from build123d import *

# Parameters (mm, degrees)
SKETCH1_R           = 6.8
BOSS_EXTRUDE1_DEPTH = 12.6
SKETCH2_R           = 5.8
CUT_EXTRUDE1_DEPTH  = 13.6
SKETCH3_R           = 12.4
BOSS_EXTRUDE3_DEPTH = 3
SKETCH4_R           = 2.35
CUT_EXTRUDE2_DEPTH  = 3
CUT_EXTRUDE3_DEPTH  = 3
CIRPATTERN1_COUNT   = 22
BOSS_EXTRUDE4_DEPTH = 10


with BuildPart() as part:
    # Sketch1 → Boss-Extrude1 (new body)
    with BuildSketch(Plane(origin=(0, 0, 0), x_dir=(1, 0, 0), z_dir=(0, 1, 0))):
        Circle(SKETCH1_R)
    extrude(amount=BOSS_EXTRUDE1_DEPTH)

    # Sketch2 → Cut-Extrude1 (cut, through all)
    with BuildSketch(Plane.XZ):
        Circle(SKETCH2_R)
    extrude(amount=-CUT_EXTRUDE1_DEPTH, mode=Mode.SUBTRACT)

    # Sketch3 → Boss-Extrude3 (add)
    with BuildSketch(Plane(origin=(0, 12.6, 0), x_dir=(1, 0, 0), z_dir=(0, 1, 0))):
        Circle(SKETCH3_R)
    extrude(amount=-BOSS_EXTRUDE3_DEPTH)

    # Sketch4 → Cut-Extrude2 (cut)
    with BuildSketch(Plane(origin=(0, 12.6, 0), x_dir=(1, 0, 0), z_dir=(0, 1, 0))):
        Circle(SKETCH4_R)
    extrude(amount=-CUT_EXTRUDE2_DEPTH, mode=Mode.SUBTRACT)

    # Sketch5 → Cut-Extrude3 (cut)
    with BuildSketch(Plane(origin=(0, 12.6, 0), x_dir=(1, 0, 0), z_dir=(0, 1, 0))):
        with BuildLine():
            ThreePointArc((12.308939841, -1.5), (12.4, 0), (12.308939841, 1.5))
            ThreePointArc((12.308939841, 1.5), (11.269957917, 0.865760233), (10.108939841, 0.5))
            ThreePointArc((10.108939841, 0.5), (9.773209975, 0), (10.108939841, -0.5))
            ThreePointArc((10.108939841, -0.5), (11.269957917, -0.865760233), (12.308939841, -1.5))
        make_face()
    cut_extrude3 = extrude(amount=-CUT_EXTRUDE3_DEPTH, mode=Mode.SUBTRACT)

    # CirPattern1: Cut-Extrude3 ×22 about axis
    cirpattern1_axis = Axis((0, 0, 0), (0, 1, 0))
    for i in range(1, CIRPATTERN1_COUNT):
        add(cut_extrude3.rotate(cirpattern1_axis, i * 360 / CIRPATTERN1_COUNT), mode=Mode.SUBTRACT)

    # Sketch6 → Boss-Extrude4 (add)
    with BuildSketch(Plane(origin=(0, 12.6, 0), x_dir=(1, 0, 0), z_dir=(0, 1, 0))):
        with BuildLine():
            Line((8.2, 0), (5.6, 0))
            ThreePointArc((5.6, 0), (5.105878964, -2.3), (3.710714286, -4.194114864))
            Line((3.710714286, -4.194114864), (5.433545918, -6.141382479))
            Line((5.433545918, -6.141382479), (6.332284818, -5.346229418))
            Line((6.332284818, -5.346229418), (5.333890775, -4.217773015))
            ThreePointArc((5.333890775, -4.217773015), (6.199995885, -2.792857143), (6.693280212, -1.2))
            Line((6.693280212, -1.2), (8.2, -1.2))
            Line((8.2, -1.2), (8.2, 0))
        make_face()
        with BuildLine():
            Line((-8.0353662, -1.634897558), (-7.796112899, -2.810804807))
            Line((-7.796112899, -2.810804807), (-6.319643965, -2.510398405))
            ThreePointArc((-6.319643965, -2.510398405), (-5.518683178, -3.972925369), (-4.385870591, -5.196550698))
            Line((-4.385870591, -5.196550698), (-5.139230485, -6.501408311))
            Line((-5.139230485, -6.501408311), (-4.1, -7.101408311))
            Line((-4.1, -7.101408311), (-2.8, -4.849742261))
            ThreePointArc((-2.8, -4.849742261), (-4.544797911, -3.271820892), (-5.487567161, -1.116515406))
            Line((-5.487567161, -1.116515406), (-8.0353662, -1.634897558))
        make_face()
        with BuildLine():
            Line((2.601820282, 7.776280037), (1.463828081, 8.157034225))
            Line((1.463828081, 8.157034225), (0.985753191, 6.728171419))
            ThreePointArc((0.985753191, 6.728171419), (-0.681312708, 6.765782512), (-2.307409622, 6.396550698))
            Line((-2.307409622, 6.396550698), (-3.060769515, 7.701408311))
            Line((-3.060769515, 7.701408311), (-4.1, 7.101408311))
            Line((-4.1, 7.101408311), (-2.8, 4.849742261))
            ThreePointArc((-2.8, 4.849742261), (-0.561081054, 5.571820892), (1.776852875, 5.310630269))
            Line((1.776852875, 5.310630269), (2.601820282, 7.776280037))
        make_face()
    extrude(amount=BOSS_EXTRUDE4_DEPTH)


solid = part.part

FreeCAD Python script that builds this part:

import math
import FreeCAD as App
import Part
import Sketcher
from FreeCAD import Vector
Q = App.Units.Quantity

doc = App.newDocument("Part")
body = doc.addObject("PartDesign::Body", "Body")

sketch1 = body.newObject("Sketcher::SketchObject", "Sketch")
sketch1.AttachmentSupport = (doc.getObject("XZ_Plane"), [""])
sketch1.MapMode = "FlatFace"
sketch1.addGeometry(Part.Circle(Vector(0, 0, 0), Vector(0, 0, 1), 7), False)
sketch1.addConstraint([
    Sketcher.Constraint("Coincident", 0, 3, -1, 1),
    Sketcher.Constraint("Diameter", 0, Q("13.6 mm")),
])
pad1 = body.newObject("PartDesign::Pad", "Pad")
pad1.Profile = sketch1
pad1.Length = 12.6
pad1.Reversed = True

sketch2 = body.newObject("Sketcher::SketchObject", "Sketch001")
sketch2.AttachmentSupport = (doc.getObject("XZ_Plane"), [""])
sketch2.MapMode = "FlatFace"
sketch2.addGeometry(Part.Circle(Vector(0, 0, 0), Vector(0, 0, 1), 6), False)
sketch2.addConstraint([
    Sketcher.Constraint("Coincident", 0, 3, -1, 1),
    Sketcher.Constraint("Diameter", 0, Q("11.6 mm")),
])
pocket1 = body.newObject("PartDesign::Pocket", "Pocket")
pocket1.Profile = sketch2
pocket1.Type = "ThroughAll"

sketch3 = body.newObject("Sketcher::SketchObject", "Sketch002")
sketch3.AttachmentSupport = (doc.getObject("XZ_Plane"), [""])
sketch3.MapMode = "FlatFace"
sketch3.AttachmentOffset = App.Placement(Vector(0, 0, -12.6), App.Rotation())
sketch3.addGeometry(Part.Circle(Vector(0, 0, 0), Vector(0, 0, 1), 12), False)
sketch3.addConstraint([
    Sketcher.Constraint("Coincident", 0, 3, -1, 1),
    Sketcher.Constraint("Diameter", 0, Q("24.8 mm")),
])
pad2 = body.newObject("PartDesign::Pad", "Pad001")
pad2.Profile = sketch3
pad2.Length = 3

sketch4 = body.newObject("Sketcher::SketchObject", "Sketch003")
sketch4.AttachmentSupport = (doc.getObject("XZ_Plane"), [""])
sketch4.MapMode = "FlatFace"
sketch4.AttachmentOffset = App.Placement(Vector(0, 0, -12.6), App.Rotation())
sketch4.addGeometry(Part.Circle(Vector(0, 0, 0), Vector(0, 0, 1), 2.4), False)
sketch4.addConstraint([
    Sketcher.Constraint("Coincident", 0, 3, -1, 1),
    Sketcher.Constraint("Diameter", 0, Q("4.7 mm")),
])
pocket2 = body.newObject("PartDesign::Pocket", "Pocket001")
pocket2.Profile = sketch4
pocket2.Length = 3
pocket2.Reversed = True

sketch5 = body.newObject("Sketcher::SketchObject", "Sketch004")
sketch5.AttachmentSupport = (doc.getObject("XZ_Plane"), [""])
sketch5.MapMode = "FlatFace"
sketch5.AttachmentOffset = App.Placement(Vector(0, 0, -12.6), App.Rotation())
sketch5.addGeometry([
    Part.ArcOfCircle(Part.Circle(Vector(0, 0, 0), Vector(0, 0, 1), 12.4), math.radians(-6.95), math.radians(6.95)),
    Part.ArcOfCircle(Part.Circle(Vector(9.2, -5.4, 0), Vector(0, 0, 1), 5), math.radians(52), math.radians(79)),
    Part.ArcOfCircle(Part.Circle(Vector(10.3, 0, 0), Vector(0, 0, 1), 0.5), math.radians(112), math.radians(248)),
    Part.ArcOfCircle(Part.Circle(Vector(9.2, 5.4, 0), Vector(0, 0, 1), 5), math.radians(-79), math.radians(-52)),
], False)
sketch5.addConstraint([
    Sketcher.Constraint("Coincident", 0, 1, 1, 1),
    Sketcher.Constraint("Coincident", 1, 2, 2, 2),
    Sketcher.Constraint("Coincident", 2, 1, 3, 1),
    Sketcher.Constraint("Coincident", 3, 2, 0, 2),
    Sketcher.Constraint("Coincident", 0, 3, -1, 1),
    Sketcher.Constraint("Equal", 1, 3),
    Sketcher.Constraint("Symmetric", 1, 3, 3, 3, -1),
    Sketcher.Constraint("PointOnObject", 2, 3, -1),
    Sketcher.Constraint("Radius", 0, Q("12.4 mm")),
    Sketcher.Constraint("DistanceY", 0, 1, 1, 2, Q("1 mm")),
    Sketcher.Constraint("DistanceY", 1, 2, 2, 1, Q("1 mm")),
    Sketcher.Constraint("DistanceX", 1, 2, 0, 1, Q("2.2 mm")),
    Sketcher.Constraint("Radius", 1, Q("5.024329 mm")),
    Sketcher.Constraint("Radius", 2, Q("0.540188 mm")),
])
pocket3 = body.newObject("PartDesign::Pocket", "Pocket002")
pocket3.Profile = sketch5
pocket3.Length = 3
pocket3.Reversed = True
doc.recompute()

polarpattern = body.newObject("PartDesign::PolarPattern", "PolarPattern")
polarpattern.Originals = [pocket3]
polarpattern.Axis = (doc.getObject("Y_Axis"), [""])
polarpattern.Angle = 360
polarpattern.Occurrences = 22
body.Tip = polarpattern

sketch6 = body.newObject("Sketcher::SketchObject", "Sketch005")
sketch6.AttachmentSupport = (doc.getObject("XZ_Plane"), [""])
sketch6.MapMode = "FlatFace"
sketch6.AttachmentOffset = App.Placement(Vector(0, 0, -12.6), App.Rotation())
sketch6.addGeometry([
    Part.LineSegment(Vector(8.2, 0, 0), Vector(5.6, 0, 0)),
    Part.ArcOfCircle(Part.Circle(Vector(0, 0, 0), Vector(0, 0, 1), 5.6), math.radians(0), math.radians(48)),
    Part.LineSegment(Vector(3.7, 4.2, 0), Vector(5.4, 6.1, 0)),
    Part.LineSegment(Vector(5.4, 6.1, 0), Vector(6.3, 5.3, 0)),
    Part.LineSegment(Vector(6.3, 5.3, 0), Vector(5.3, 4.2, 0)),
    Part.ArcOfCircle(Part.Circle(Vector(0, 0, 0), Vector(0, 0, 1), 6.8), math.radians(10), math.radians(38)),
    Part.LineSegment(Vector(6.7, 1.2, 0), Vector(8.2, 1.2, 0)),
    Part.LineSegment(Vector(8.2, 1.2, 0), Vector(8.2, 0, 0)),
    Part.LineSegment(Vector(-8, 1.6, 0), Vector(-7.8, 2.8, 0)),
    Part.LineSegment(Vector(-7.8, 2.8, 0), Vector(-6.3, 2.5, 0)),
    Part.ArcOfCircle(Part.Circle(Vector(0, 0, 0), Vector(0, 0, 1), 6.8), math.radians(130), math.radians(158)),
    Part.LineSegment(Vector(-4.4, 5.2, 0), Vector(-5.1, 6.5, 0)),
    Part.LineSegment(Vector(-5.1, 6.5, 0), Vector(-4.1, 7.1, 0)),
    Part.LineSegment(Vector(-4.1, 7.1, 0), Vector(-2.8, 4.8, 0)),
    Part.ArcOfCircle(Part.Circle(Vector(0, 0, 0), Vector(0, 0, 1), 5.6), math.radians(120), math.radians(168)),
    Part.LineSegment(Vector(-5.5, 1.1, 0), Vector(-8, 1.6, 0)),
    Part.LineSegment(Vector(2.6, -7.8, 0), Vector(1.5, -8.2, 0)),
    Part.LineSegment(Vector(1.5, -8.2, 0), Vector(1, -6.7, 0)),
    Part.ArcOfCircle(Part.Circle(Vector(0, 0, 0), Vector(0, 0, 1), 6.8), math.radians(-110), math.radians(-82)),
    Part.LineSegment(Vector(-2.3, -6.4, 0), Vector(-3.1, -7.7, 0)),
    Part.LineSegment(Vector(-3.1, -7.7, 0), Vector(-4.1, -7.1, 0)),
    Part.LineSegment(Vector(-4.1, -7.1, 0), Vector(-2.8, -4.8, 0)),
    Part.ArcOfCircle(Part.Circle(Vector(0, 0, 0), Vector(0, 0, 1), 5.6), math.radians(-120), math.radians(-72)),
    Part.LineSegment(Vector(1.8, -5.3, 0), Vector(2.6, -7.8, 0)),
], False)
sketch6.addConstraint([
    Sketcher.Constraint("Coincident", 0, 2, 1, 1),
    Sketcher.Constraint("Coincident", 1, 2, 2, 1),
    Sketcher.Constraint("Coincident", 2, 2, 3, 1),
    Sketcher.Constraint("Coincident", 3, 2, 4, 1),
    Sketcher.Constraint("Coincident", 4, 2, 5, 2),
    Sketcher.Constraint("Coincident", 5, 1, 6, 1),
    Sketcher.Constraint("Coincident", 6, 2, 7, 1),
    Sketcher.Constraint("Coincident", 7, 2, 0, 1),
    Sketcher.Constraint("Coincident", 8, 2, 9, 1),
    Sketcher.Constraint("Coincident", 9, 2, 10, 2),
    Sketcher.Constraint("Coincident", 10, 1, 11, 1),
    Sketcher.Constraint("Coincident", 11, 2, 12, 1),
    Sketcher.Constraint("Coincident", 12, 2, 13, 1),
    Sketcher.Constraint("Coincident", 13, 2, 14, 1),
    Sketcher.Constraint("Coincident", 14, 2, 15, 1),
    Sketcher.Constraint("Coincident", 15, 2, 8, 1),
    Sketcher.Constraint("Coincident", 16, 2, 17, 1),
    Sketcher.Constraint("Coincident", 17, 2, 18, 2),
    Sketcher.Constraint("Coincident", 18, 1, 19, 1),
    Sketcher.Constraint("Coincident", 19, 2, 20, 1),
    Sketcher.Constraint("Coincident", 20, 2, 21, 1),
    Sketcher.Constraint("Coincident", 21, 2, 22, 1),
    Sketcher.Constraint("Coincident", 22, 2, 23, 1),
    Sketcher.Constraint("Coincident", 23, 2, 16, 1),
    Sketcher.Constraint("Horizontal", 0),
    Sketcher.Constraint("Horizontal", 6),
    Sketcher.Constraint("Vertical", 7),
    Sketcher.Constraint("Coincident", 1, 3, -1, 1),
    Sketcher.Constraint("Coincident", 5, 3, -1, 1),
    Sketcher.Constraint("Coincident", 10, 3, -1, 1),
    Sketcher.Constraint("Coincident", 14, 3, -1, 1),
    Sketcher.Constraint("Coincident", 18, 3, -1, 1),
    Sketcher.Constraint("Coincident", 22, 3, -1, 1),
    Sketcher.Constraint("Equal", 5, 10),
    Sketcher.Constraint("Equal", 1, 14),
    Sketcher.Constraint("Equal", 10, 18),
    Sketcher.Constraint("Equal", 14, 22),
    Sketcher.Constraint("Symmetric", 12, 2, 20, 2, -1),
    Sketcher.Constraint("PointOnObject", 0, 2, -1),
    Sketcher.Constraint("Perpendicular", 2, 3),
    Sketcher.Constraint("Perpendicular", 3, 4),
    Sketcher.Constraint("Perpendicular", 8, 9),
    Sketcher.Constraint("Perpendicular", 11, 12),
    Sketcher.Constraint("Perpendicular", 12, 13),
    Sketcher.Constraint("Parallel", 9, 15),
    Sketcher.Constraint("Perpendicular", 16, 17),
    Sketcher.Constraint("Perpendicular", 19, 20),
    Sketcher.Constraint("Perpendicular", 20, 21),
    Sketcher.Constraint("Parallel", 17, 23),
    Sketcher.Constraint("Vertical", 13, 2, 21, 2),
    Sketcher.Constraint("Equal", 3, 8),
    Sketcher.Constraint("Equal", 4, 9),
    Sketcher.Constraint("Equal", 9, 11),
    Sketcher.Constraint("Equal", 8, 12),
    Sketcher.Constraint("Equal", 2, 13),
    Sketcher.Constraint("Equal", 13, 15),
    Sketcher.Constraint("Equal", 12, 16),
    Sketcher.Constraint("Equal", 11, 17),
    Sketcher.Constraint("Equal", 17, 19),
    Sketcher.Constraint("Equal", 16, 20),
    Sketcher.Constraint("Equal", 21, 23),
    Sketcher.Constraint("Radius", 1, Q("5.6 mm")),
    Sketcher.Constraint("Radius", 5, Q("6.8 mm")),
    Sketcher.Constraint("Angle", 11, Q("120 deg")),
    Sketcher.Constraint("DistanceX", 0, 2, 0, 1, Q("2.6 mm")),
    Sketcher.Constraint("DistanceY", 7, 2, 7, 1, Q("1.2 mm")),
    Sketcher.Constraint("Distance", 2, Q("2.6 mm")),
    Sketcher.Constraint("Distance", 3, Q("1.2 mm")),
    Sketcher.Constraint("DistanceY", -1, 1, 9, 2, Q("2.510398 mm")),
    Sketcher.Constraint("DistanceX", 17, 2, 22, 2, Q("0.7911 mm")),
    Sketcher.Constraint("DistanceY", -1, 1, 3, 2, Q("5.346229 mm")),
])
pad3 = body.newObject("PartDesign::Pad", "Pad002")
pad3.Profile = sketch6
pad3.Length = 10
pad3.Reversed = True

doc.recompute()
